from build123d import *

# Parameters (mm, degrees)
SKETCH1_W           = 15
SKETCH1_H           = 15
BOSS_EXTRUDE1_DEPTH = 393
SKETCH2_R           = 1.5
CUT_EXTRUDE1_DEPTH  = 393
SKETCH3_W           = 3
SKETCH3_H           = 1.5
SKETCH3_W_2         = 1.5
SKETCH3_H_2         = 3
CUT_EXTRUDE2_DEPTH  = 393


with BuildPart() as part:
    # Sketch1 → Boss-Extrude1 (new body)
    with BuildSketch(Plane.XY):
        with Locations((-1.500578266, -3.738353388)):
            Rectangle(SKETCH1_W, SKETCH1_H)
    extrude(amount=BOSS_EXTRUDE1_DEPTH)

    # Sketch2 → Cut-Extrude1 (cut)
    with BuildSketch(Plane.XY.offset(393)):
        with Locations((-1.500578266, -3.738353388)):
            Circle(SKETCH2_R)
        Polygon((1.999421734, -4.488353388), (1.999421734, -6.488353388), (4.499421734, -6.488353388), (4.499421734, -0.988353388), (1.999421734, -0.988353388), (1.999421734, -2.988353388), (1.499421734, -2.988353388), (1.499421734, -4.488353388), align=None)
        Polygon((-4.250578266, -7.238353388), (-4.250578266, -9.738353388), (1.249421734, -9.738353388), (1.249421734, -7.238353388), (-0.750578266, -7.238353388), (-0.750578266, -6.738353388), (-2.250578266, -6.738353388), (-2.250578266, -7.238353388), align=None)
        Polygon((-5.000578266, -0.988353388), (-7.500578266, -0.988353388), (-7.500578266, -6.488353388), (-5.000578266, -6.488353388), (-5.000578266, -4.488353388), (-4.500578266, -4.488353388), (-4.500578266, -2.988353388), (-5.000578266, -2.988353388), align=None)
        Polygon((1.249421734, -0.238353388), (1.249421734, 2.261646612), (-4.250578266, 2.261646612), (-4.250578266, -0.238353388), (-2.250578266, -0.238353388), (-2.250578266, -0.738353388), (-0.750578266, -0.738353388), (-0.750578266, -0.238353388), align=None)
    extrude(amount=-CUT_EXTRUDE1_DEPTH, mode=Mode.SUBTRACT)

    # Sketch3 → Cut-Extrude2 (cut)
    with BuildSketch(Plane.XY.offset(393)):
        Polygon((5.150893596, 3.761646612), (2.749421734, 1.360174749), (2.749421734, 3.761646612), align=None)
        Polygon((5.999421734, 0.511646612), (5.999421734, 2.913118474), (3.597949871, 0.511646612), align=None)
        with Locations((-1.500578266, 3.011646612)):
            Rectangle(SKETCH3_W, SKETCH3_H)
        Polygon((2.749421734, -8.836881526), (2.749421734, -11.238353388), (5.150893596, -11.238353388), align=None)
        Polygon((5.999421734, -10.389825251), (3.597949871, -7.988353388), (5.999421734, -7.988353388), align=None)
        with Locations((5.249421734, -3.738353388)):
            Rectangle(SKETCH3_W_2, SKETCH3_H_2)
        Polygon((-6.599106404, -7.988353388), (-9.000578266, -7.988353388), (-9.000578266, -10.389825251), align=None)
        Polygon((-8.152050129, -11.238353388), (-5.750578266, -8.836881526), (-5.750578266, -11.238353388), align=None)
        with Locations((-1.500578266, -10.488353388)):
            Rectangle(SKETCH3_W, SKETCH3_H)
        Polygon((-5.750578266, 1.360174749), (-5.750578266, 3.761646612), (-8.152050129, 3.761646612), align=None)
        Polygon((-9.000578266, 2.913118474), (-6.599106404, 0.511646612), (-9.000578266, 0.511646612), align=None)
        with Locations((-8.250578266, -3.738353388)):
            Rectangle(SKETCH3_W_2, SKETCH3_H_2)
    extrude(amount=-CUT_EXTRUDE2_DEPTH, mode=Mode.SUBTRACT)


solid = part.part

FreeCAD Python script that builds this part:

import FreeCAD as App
import Part
import Sketcher
from FreeCAD import Vector
Q = App.Units.Quantity

doc = App.newDocument("Part")
body = doc.addObject("PartDesign::Body", "Body")

# Sketch on XY plane
sketch1 = doc.addObject("Sketcher::SketchObject", "Sketch")
body.addObject(sketch1)
sketch1.AttachmentSupport = (doc.XY_Plane, [""])
sketch1.MapMode = "FlatFace"
sketch1.addGeometry([
    Part.LineSegment(Vector(-9, 4, 0), Vector(-9, -11, 0)),
    Part.LineSegment(Vector(-9, -11, 0), Vector(6, -11, 0)),
    Part.LineSegment(Vector(6, -11, 0), Vector(6, 4, 0)),
    Part.LineSegment(Vector(6, 4, 0), Vector(-9, 4, 0)),
], False)
sketch1.addConstraint([
    Sketcher.Constraint("Coincident", 0, 2, 1, 1),
    Sketcher.Constraint("Coincident", 1, 2, 2, 1),
    Sketcher.Constraint("Coincident", 2, 2, 3, 1),
    Sketcher.Constraint("Coincident", 3, 2, 0, 1),
    Sketcher.Constraint("Vertical", 0),
    Sketcher.Constraint("Horizontal", 1),
    Sketcher.Constraint("Vertical", 2),
    Sketcher.Constraint("Horizontal", 3),
    Sketcher.Constraint("Equal", 3, 0),
    Sketcher.Constraint("DistanceX", 1, 1, 1, 2, Q("15 mm")),
    Sketcher.Constraint("DistanceX", 0, 2, -1, 1, Q("9.000578 mm")),
    Sketcher.Constraint("DistanceY", 0, 2, -1, 1, Q("11.238353 mm")),
])
pad1 = doc.addObject("PartDesign::Pad", "Pad")
body.addObject(pad1)
pad1.Profile = sketch1
pad1.Length = 393

# Sketch on XY plane
sketch2 = doc.addObject("Sketcher::SketchObject", "Sketch001")
body.addObject(sketch2)
sketch2.AttachmentSupport = (doc.XY_Plane, [""])
sketch2.MapMode = "FlatFace"
sketch2.AttachmentOffset = App.Placement(Vector(0, 0, 393), App.Rotation())
sketch2.addGeometry([
    Part.Circle(Vector(-1.5, -3.7, 0), Vector(0, 0, 1), 1.5),  # 0
    Part.LineSegment(Vector(2, -4.5, 0), Vector(2, -6.5, 0)),  # 1
    Part.LineSegment(Vector(2, -6.5, 0), Vector(4.5, -6.5, 0)),  # 2
    Part.LineSegment(Vector(4.5, -6.5, 0), Vector(4.5, -1, 0)),  # 3
    Part.LineSegment(Vector(4.5, -1, 0), Vector(2, -1, 0)),  # 4
    Part.LineSegment(Vector(2, -1, 0), Vector(2, -3, 0)),  # 5
    Part.LineSegment(Vector(2, -3, 0), Vector(1.5, -3, 0)),  # 6
    Part.LineSegment(Vector(1.5, -3, 0), Vector(1.5, -4.5, 0)),  # 7
    Part.LineSegment(Vector(1.5, -4.5, 0), Vector(2, -4.5, 0)),  # 8
    Part.LineSegment(Vector(-4.3, -7.2, 0), Vector(-4.3, -9.7, 0)),  # 9
    Part.LineSegment(Vector(-4.3, -9.7, 0), Vector(1.2, -9.7, 0)),  # 10
    Part.LineSegment(Vector(1.2, -9.7, 0), Vector(1.2, -7.2, 0)),  # 11
    Part.LineSegment(Vector(1.2, -7.2, 0), Vector(-0.8, -7.2, 0)),  # 12
    Part.LineSegment(Vector(-0.8, -7.2, 0), Vector(-0.8, -6.7, 0)),  # 13
    Part.LineSegment(Vector(-0.8, -6.7, 0), Vector(-2.3, -6.7, 0)),  # 14
    Part.LineSegment(Vector(-2.3, -6.7, 0), Vector(-2.3, -7.2, 0)),  # 15
    Part.LineSegment(Vector(-2.3, -7.2, 0), Vector(-4.3, -7.2, 0)),  # 16
    Part.LineSegment(Vector(-5, -1, 0), Vector(-7.5, -1, 0)),  # 17
    Part.LineSegment(Vector(-7.5, -1, 0), Vector(-7.5, -6.5, 0)),  # 18
    Part.LineSegment(Vector(-7.5, -6.5, 0), Vector(-5, -6.5, 0)),  # 19
    Part.LineSegment(Vector(-5, -6.5, 0), Vector(-5, -4.5, 0)),  # 20
    Part.LineSegment(Vector(-5, -4.5, 0), Vector(-4.5, -4.5, 0)),  # 21
    Part.LineSegment(Vector(-4.5, -4.5, 0), Vector(-4.5, -3, 0)),  # 22
    Part.LineSegment(Vector(-4.5, -3, 0), Vector(-5, -3, 0)),  # 23
    Part.LineSegment(Vector(-5, -3, 0), Vector(-5, -1, 0)),  # 24
    Part.LineSegment(Vector(1.2, -0.2, 0), Vector(1.2, 2.3, 0)),  # 25
    Part.LineSegment(Vector(1.2, 2.3, 0), Vector(-4.3, 2.3, 0)),  # 26
    Part.LineSegment(Vector(-4.3, 2.3, 0), Vector(-4.3, -0.2, 0)),  # 27
    Part.LineSegment(Vector(-4.3, -0.2, 0), Vector(-2.3, -0.2, 0)),  # 28
    Part.LineSegment(Vector(-2.3, -0.2, 0), Vector(-2.3, -0.7, 0)),  # 29
    Part.LineSegment(Vector(-2.3, -0.7, 0), Vector(-0.8, -0.7, 0)),  # 30
    Part.LineSegment(Vector(-0.8, -0.7, 0), Vector(-0.8, -0.2, 0)),  # 31
    Part.LineSegment(Vector(-0.8, -0.2, 0), Vector(1.2, -0.2, 0)),  # 32
], False)
sketch2.addConstraint([
    Sketcher.Constraint("Coincident", 1, 2, 2, 1),
    Sketcher.Constraint("Coincident", 2, 2, 3, 1),
    Sketcher.Constraint("Coincident", 3, 2, 4, 1),
    Sketcher.Constraint("Coincident", 4, 2, 5, 1),
    Sketcher.Constraint("Coincident", 5, 2, 6, 1),
    Sketcher.Constraint("Coincident", 6, 2, 7, 1),
    Sketcher.Constraint("Coincident", 7, 2, 8, 1),
    Sketcher.Constraint("Coincident", 8, 2, 1, 1),
    Sketcher.Constraint("Coincident", 9, 2, 10, 1),
    Sketcher.Constraint("Coincident", 10, 2, 11, 1),
    Sketcher.Constraint("Coincident", 11, 2, 12, 1),
    Sketcher.Constraint("Coincident", 12, 2, 13, 1),
    Sketcher.Constraint("Coincident", 13, 2, 14, 1),
    Sketcher.Constraint("Coincident", 14, 2, 15, 1),
    Sketcher.Constraint("Coincident", 15, 2, 16, 1),
    Sketcher.Constraint("Coincident", 16, 2, 9, 1),
    Sketcher.Constraint("Coincident", 17, 2, 18, 1),
    Sketcher.Constraint("Coincident", 18, 2, 19, 1),
    Sketcher.Constraint("Coincident", 19, 2, 20, 1),
    Sketcher.Constraint("Coincident", 20, 2, 21, 1),
    Sketcher.Constraint("Coincident", 21, 2, 22, 1),
    Sketcher.Constraint("Coincident", 22, 2, 23, 1),
    Sketcher.Constraint("Coincident", 23, 2, 24, 1),
    Sketcher.Constraint("Coincident", 24, 2, 17, 1),
    Sketcher.Constraint("Coincident", 25, 2, 26, 1),
    Sketcher.Constraint("Coincident", 26, 2, 27, 1),
    Sketcher.Constraint("Coincident", 27, 2, 28, 1),
    Sketcher.Constraint("Coincident", 28, 2, 29, 1),
    Sketcher.Constraint("Coincident", 29, 2, 30, 1),
    Sketcher.Constraint("Coincident", 30, 2, 31, 1),
    Sketcher.Constraint("Coincident", 31, 2, 32, 1),
    Sketcher.Constraint("Coincident", 32, 2, 25, 1),
    Sketcher.Constraint("Vertical", 1),
    Sketcher.Constraint("Horizontal", 2),
    Sketcher.Constraint("Vertical", 3),
    Sketcher.Constraint("Horizontal", 4),
    Sketcher.Constraint("Vertical", 5),
    Sketcher.Constraint("Horizontal", 6),
    Sketcher.Constraint("Vertical", 7),
    Sketcher.Constraint("Horizontal", 8),
    Sketcher.Constraint("Vertical", 9),
    Sketcher.Constraint("Horizontal", 10),
    Sketcher.Constraint("Vertical", 11),
    Sketcher.Constraint("Horizontal", 12),
    Sketcher.Constraint("Vertical", 13),
    Sketcher.Constraint("Horizontal", 14),
    Sketcher.Constraint("Vertical", 15),
    Sketcher.Constraint("Horizontal", 16),
    Sketcher.Constraint("Horizontal", 17),
    Sketcher.Constraint("Vertical", 18),
    Sketcher.Constraint("Horizontal", 19),
    Sketcher.Constraint("Vertical", 20),
    Sketcher.Constraint("Horizontal", 21),
    Sketcher.Constraint("Vertical", 22),
    Sketcher.Constraint("Horizontal", 23),
    Sketcher.Constraint("Vertical", 24),
    Sketcher.Constraint("Vertical", 25),
    Sketcher.Constraint("Horizontal", 26),
    Sketcher.Constraint("Vertical", 27),
    Sketcher.Constraint("Horizontal", 28),
    Sketcher.Constraint("Vertical", 29),
    Sketcher.Constraint("Horizontal", 30),
    Sketcher.Constraint("Vertical", 31),
    Sketcher.Constraint("Horizontal", 32),
    Sketcher.Constraint("Horizontal", 12, 2, 15, 2),
    Sketcher.Constraint("Horizontal", 4, 2, 17, 2),
    Sketcher.Constraint("Horizontal", 2, 2, 18, 2),
    Sketcher.Constraint("Horizontal", 8, 2, 20, 2),
    Sketcher.Constraint("Horizontal", 6, 2, 22, 2),
    Sketcher.Constraint("Horizontal", 28, 2, 31, 2),
    Sketcher.Constraint("Vertical", 1, 2, 4, 2),
    Sketcher.Constraint("Vertical", 20, 2, 23, 2),
    Sketcher.Constraint("Vertical", 11, 2, 25, 2),
    Sketcher.Constraint("Vertical", 16, 2, 26, 2),
    Sketcher.Constraint("Vertical", 15, 2, 28, 2),
    Sketcher.Constraint("Vertical", 13, 2, 30, 2),
    Sketcher.Constraint("Equal", 12, 16),
    Sketcher.Constraint("Equal", 4, 17),
    Sketcher.Constraint("Equal", 8, 21),
    Sketcher.Constraint("Equal", 32, 1),
    Sketcher.Constraint("Equal", 26, 3),
    Sketcher.Constraint("Equal", 1, 5),
    Sketcher.Constraint("Equal", 19, 9),
    Sketcher.Constraint("Equal", 23, 13),
    Sketcher.Constraint("Equal", 11, 25),
    Sketcher.Constraint("Equal", 15, 29),
    Sketcher.Constraint("Diameter", 0, Q("3 mm")),
    Sketcher.Constraint("DistanceX", 12, 2, 12, 1, Q("2 mm")),
    Sketcher.Constraint("DistanceX", 2, 1, 2, 2, Q("2.5 mm")),
    Sketcher.Constraint("DistanceX", 6, 2, 6, 1, Q("0.5 mm")),
    Sketcher.Constraint("DistanceX", 10, 1, 10, 2, Q("5.5 mm")),
    Sketcher.Constraint("DistanceX", 0, 3, 2, 2, Q("6 mm")),
    Sketcher.Constraint("DistanceY", 9, 2, 0, 3, Q("6 mm")),
    Sketcher.Constraint("DistanceX", 17, 2, 0, 3, Q("6 mm")),
    Sketcher.Constraint("DistanceY", 0, 3, 25, 2, Q("6 mm")),
    Sketcher.Constraint("DistanceY", 1, 2, 0, 3, Q("2.75 mm")),
    Sketcher.Constraint("DistanceX", 9, 2, 0, 3, Q("2.75 mm")),
    Sketcher.Constraint("DistanceX", 0, 3, -1, 1, Q("1.500578 mm")),
    Sketcher.Constraint("DistanceY", 0, 3, -1, 1, Q("3.738353 mm")),
])
pocket1 = doc.addObject("PartDesign::Pocket", "Pocket")
body.addObject(pocket1)
pocket1.Profile = sketch2
pocket1.Length = 393

# Sketch on XY plane
sketch3 = doc.addObject("Sketcher::SketchObject", "Sketch002")
body.addObject(sketch3)
sketch3.AttachmentSupport = (doc.XY_Plane, [""])
sketch3.MapMode = "FlatFace"
sketch3.AttachmentOffset = App.Placement(Vector(0, 0, 393), App.Rotation())
sketch3.addGeometry([
    Part.LineSegment(Vector(2.7, 1.4, 0), Vector(5.2, 3.8, 0)),  # 0
    Part.LineSegment(Vector(5.2, 3.8, 0), Vector(2.7, 3.8, 0)),  # 1
    Part.LineSegment(Vector(2.7, 3.8, 0), Vector(2.7, 1.4, 0)),  # 2
    Part.LineSegment(Vector(6, 0.5, 0), Vector(6, 2.9, 0)),  # 3
    Part.LineSegment(Vector(6, 2.9, 0), Vector(3.6, 0.5, 0)),  # 4
    Part.LineSegment(Vector(3.6, 0.5, 0), Vector(6, 0.5, 0)),  # 5
    Part.LineSegment(Vector(-3, 3.8, 0), Vector(-3, 2.3, 0)),  # 6
    Part.LineSegment(Vector(-3, 2.3, 0), Vector(0, 2.3, 0)),  # 7
    Part.LineSegment(Vector(0, 2.3, 0), Vector(0, 3.8, 0)),  # 8
    Part.LineSegment(Vector(0, 3.8, 0), Vector(-3, 3.8, 0)),  # 9
    Part.LineSegment(Vector(2.7, -8.8, 0), Vector(2.7, -11.2, 0)),  # 10
    Part.LineSegment(Vector(2.7, -11.2, 0), Vector(5.2, -11.2, 0)),  # 11
    Part.LineSegment(Vector(5.2, -11.2, 0), Vector(2.7, -8.8, 0)),  # 12
    Part.LineSegment(Vector(3.6, -8, 0), Vector(6, -10.4, 0)),  # 13
    Part.LineSegment(Vector(6, -10.4, 0), Vector(6, -8, 0)),  # 14
    Part.LineSegment(Vector(6, -8, 0), Vector(3.6, -8, 0)),  # 15
    Part.LineSegment(Vector(4.5, -2.2, 0), Vector(4.5, -5.2, 0)),  # 16
    Part.LineSegment(Vector(4.5, -5.2, 0), Vector(6, -5.2, 0)),  # 17
    Part.LineSegment(Vector(6, -5.2, 0), Vector(6, -2.2, 0)),  # 18
    Part.LineSegment(Vector(6, -2.2, 0), Vector(4.5, -2.2, 0)),  # 19
    Part.LineSegment(Vector(-6.6, -8, 0), Vector(-9, -8, 0)),  # 20
    Part.LineSegment(Vector(-9, -8, 0), Vector(-9, -10.4, 0)),  # 21
    Part.LineSegment(Vector(-9, -10.4, 0), Vector(-6.6, -8, 0)),  # 22
    Part.LineSegment(Vector(-5.8, -8.8, 0), Vector(-8.2, -11.2, 0)),  # 23
    Part.LineSegment(Vector(-8.2, -11.2, 0), Vector(-5.8, -11.2, 0)),  # 24
    Part.LineSegment(Vector(-5.8, -11.2, 0), Vector(-5.8, -8.8, 0)),  # 25
    Part.LineSegment(Vector(-3, -9.7, 0), Vector(-3, -11.2, 0)),  # 26
    Part.LineSegment(Vector(-3, -11.2, 0), Vector(0, -11.2, 0)),  # 27
    Part.LineSegment(Vector(0, -11.2, 0), Vector(0, -9.7, 0)),  # 28
    Part.LineSegment(Vector(0, -9.7, 0), Vector(-3, -9.7, 0)),  # 29
    Part.LineSegment(Vector(-5.8, 1.4, 0), Vector(-5.8, 3.8, 0)),  # 30
    Part.LineSegment(Vector(-5.8, 3.8, 0), Vector(-8.2, 3.8, 0)),  # 31
    Part.LineSegment(Vector(-8.2, 3.8, 0), Vector(-5.8, 1.4, 0)),  # 32
    Part.LineSegment(Vector(-6.6, 0.5, 0), Vector(-9, 2.9, 0)),  # 33
    Part.LineSegment(Vector(-9, 2.9, 0), Vector(-9, 0.5, 0)),  # 34
    Part.LineSegment(Vector(-9, 0.5, 0), Vector(-6.6, 0.5, 0)),  # 35
    Part.LineSegment(Vector(-9, -2.2, 0), Vector(-9, -5.2, 0)),  # 36
    Part.LineSegment(Vector(-9, -5.2, 0), Vector(-7.5, -5.2, 0)),  # 37
    Part.LineSegment(Vector(-7.5, -5.2, 0), Vector(-7.5, -2.2, 0)),  # 38
    Part.LineSegment(Vector(-7.5, -2.2, 0), Vector(-9, -2.2, 0)),  # 39
], False)
sketch3.addConstraint([
    Sketcher.Constraint("Coincident", 0, 2, 1, 1),
    Sketcher.Constraint("Coincident", 1, 2, 2, 1),
    Sketcher.Constraint("Coincident", 2, 2, 0, 1),
    Sketcher.Constraint("Coincident", 3, 2, 4, 1),
    Sketcher.Constraint("Coincident", 4, 2, 5, 1),
    Sketcher.Constraint("Coincident", 5, 2, 3, 1),
    Sketcher.Constraint("Coincident", 6, 2, 7, 1),
    Sketcher.Constraint("Coincident", 7, 2, 8, 1),
    Sketcher.Constraint("Coincident", 8, 2, 9, 1),
    Sketcher.Constraint("Coincident", 9, 2, 6, 1),
    Sketcher.Constraint("Coincident", 10, 2, 11, 1),
    Sketcher.Constraint("Coincident", 11, 2, 12, 1),
    Sketcher.Constraint("Coincident", 12, 2, 10, 1),
    Sketcher.Constraint("Coincident", 13, 2, 14, 1),
    Sketcher.Constraint("Coincident", 14, 2, 15, 1),
    Sketcher.Constraint("Coincident", 15, 2, 13, 1),
    Sketcher.Constraint("Coincident", 16, 2, 17, 1),
    Sketcher.Constraint("Coincident", 17, 2, 18, 1),
    Sketcher.Constraint("Coincident", 18, 2, 19, 1),
    Sketcher.Constraint("Coincident", 19, 2, 16, 1),
    Sketcher.Constraint("Coincident", 20, 2, 21, 1),
    Sketcher.Constraint("Coincident", 21, 2, 22, 1),
    Sketcher.Constraint("Coincident", 22, 2, 20, 1),
    Sketcher.Constraint("Coincident", 23, 2, 24, 1),
    Sketcher.Constraint("Coincident", 24, 2, 25, 1),
    Sketcher.Constraint("Coincident", 25, 2, 23, 1),
    Sketcher.Constraint("Coincident", 26, 2, 27, 1),
    Sketcher.Constraint("Coincident", 27, 2, 28, 1),
    Sketcher.Constraint("Coincident", 28, 2, 29, 1),
    Sketcher.Constraint("Coincident", 29, 2, 26, 1),
    Sketcher.Constraint("Coincident", 30, 2, 31, 1),
    Sketcher.Constraint("Coincident", 31, 2, 32, 1),
    Sketcher.Constraint("Coincident", 32, 2, 30, 1),
    Sketcher.Constraint("Coincident", 33, 2, 34, 1),
    Sketcher.Constraint("Coincident", 34, 2, 35, 1),
    Sketcher.Constraint("Coincident", 35, 2, 33, 1),
    Sketcher.Constraint("Coincident", 36, 2, 37, 1),
    Sketcher.Constraint("Coincident", 37, 2, 38, 1),
    Sketcher.Constraint("Coincident", 38, 2, 39, 1),
    Sketcher.Constraint("Coincident", 39, 2, 36, 1),
    Sketcher.Constraint("Horizontal", 1),
    Sketcher.Constraint("Vertical", 2),
    Sketcher.Constraint("Vertical", 3),
    Sketcher.Constraint("Horizontal", 5),
    Sketcher.Constraint("Vertical", 6),
    Sketcher.Constraint("Horizontal", 7),
    Sketcher.Constraint("Vertical", 8),
    Sketcher.Constraint("Horizontal", 9),
    Sketcher.Constraint("Vertical", 10),
    Sketcher.Constraint("Horizontal", 11),
    Sketcher.Constraint("Vertical", 14),
    Sketcher.Constraint("Horizontal", 15),
    Sketcher.Constraint("Vertical", 16),
    Sketcher.Constraint("Horizontal", 17),
    Sketcher.Constraint("Vertical", 18),
    Sketcher.Constraint("Horizontal", 19),
    Sketcher.Constraint("Horizontal", 20),
    Sketcher.Constraint("Vertical", 21),
    Sketcher.Constraint("Horizontal", 24),
    Sketcher.Constraint("Vertical", 25),
    Sketcher.Constraint("Vertical", 26),
    Sketcher.Constraint("Horizontal", 27),
    Sketcher.Constraint("Vertical", 28),
    Sketcher.Constraint("Horizontal", 29),
    Sketcher.Constraint("Vertical", 30),
    Sketcher.Constraint("Horizontal", 31),
    Sketcher.Constraint("Vertical", 34),
    Sketcher.Constraint("Horizontal", 35),
    Sketcher.Constraint("Vertical", 36),
    Sketcher.Constraint("Horizontal", 37),
    Sketcher.Constraint("Vertical", 38),
    Sketcher.Constraint("Horizontal", 39),
    Sketcher.Constraint("Parallel", 0, 4),
    Sketcher.Constraint("Perpendicular", 4, 12),
    Sketcher.Constraint("Parallel", 12, 13),
    Sketcher.Constraint("Perpendicular", 13, 22),
    Sketcher.Constraint("Parallel", 22, 23),
    Sketcher.Constraint("Perpendicular", 23, 32),
    Sketcher.Constraint("Parallel", 32, 33),
    Sketcher.Constraint("Horizontal", 1, 2, 8, 2),
    Sketcher.Constraint("Horizontal", 15, 2, 20, 2),
    Sketcher.Constraint("Horizontal", 13, 2, 21, 2),
    Sketcher.Constraint("Horizontal", 11, 2, 23, 2),
    Sketcher.Constraint("Horizontal", 12, 2, 25, 2),
    Sketcher.Constraint("Horizontal", 24, 2, 26, 2),
    Sketcher.Constraint("Horizontal", 9, 2, 30, 2),
    Sketcher.Constraint("Horizontal", 2, 2, 32, 2),
    Sketcher.Constraint("Horizontal", 3, 2, 33, 2),
    Sketcher.Constraint("Horizontal", 5, 2, 34, 2),
    Sketcher.Constraint("Horizontal", 17, 2, 36, 2),
    Sketcher.Constraint("Horizontal", 19, 2, 38, 2),
    Sketcher.Constraint("Vertical", 2, 2, 10, 2),
    Sketcher.Constraint("Vertical", 0, 2, 11, 2),
    Sketcher.Constraint("Vertical", 5, 2, 13, 2),
    Sketcher.Constraint("Vertical", 4, 2, 15, 2),
    Sketcher.Constraint("Vertical", 14, 2, 17, 2),
    Sketcher.Constraint("Vertical", 9, 2, 26, 2),
    Sketcher.Constraint("Vertical", 8, 2, 27, 2),
    Sketcher.Constraint("Vertical", 25, 2, 30, 2),
    Sketcher.Constraint("Vertical", 23, 2, 31, 2),
    Sketcher.Constraint("Vertical", 21, 2, 33, 2),
    Sketcher.Constraint("Vertical", 34, 2, 36, 2),
    Sketcher.Constraint("Equal", 1, 5),
    Sketcher.Constraint("Equal", 19, 37),
    Sketcher.Constraint("Equal", 39, 6),
    Sketcher.Constraint("Equal", 29, 16),
    Sketcher.Constraint("Equal", 8, 26),
    Sketcher.Constraint("DistanceX", 7, 1, 7, 2, Q("3 mm")),
    Sketcher.Constraint("DistanceX", 17, 1, 17, 2, Q("1.5 mm")),
    Sketcher.Constraint("DistanceX", 6, 2, 3, 2, Q("9 mm")),
    Sketcher.Constraint("DistanceX", 20, 2, 6, 2, Q("6 mm")),
    Sketcher.Constraint("DistanceY", 10, 2, 7, 2, Q("13.5 mm")),
    Sketcher.Constraint("DistanceY", 14, 2, 5, 2, Q("8.5 mm")),
    Sketcher.Constraint("DistanceX", 24, 2, 10, 2, Q("8.5 mm")),
    Sketcher.Constraint("DistanceX", 1, 2, 3, 2, Q("3.25 mm")),
    Sketcher.Constraint("DistanceY", 4, 2, 1, 2, Q("3.25 mm")),
    Sketcher.Constraint("DistanceY", 15, 2, 16, 2, Q("2.75 mm")),
    Sketcher.Constraint("DistanceX", 1, 2, 1, 1, Q("2.401472 mm")),
    Sketcher.Constraint("DistanceX", -1, 1, 1, 2, Q("2.749422 mm")),
    Sketcher.Constraint("DistanceY", -1, 1, 3, 2, Q("2.913118 mm")),
])
pocket2 = doc.addObject("PartDesign::Pocket", "Pocket001")
body.addObject(pocket2)
pocket2.Profile = sketch3
pocket2.Length = 393

doc.recompute()
